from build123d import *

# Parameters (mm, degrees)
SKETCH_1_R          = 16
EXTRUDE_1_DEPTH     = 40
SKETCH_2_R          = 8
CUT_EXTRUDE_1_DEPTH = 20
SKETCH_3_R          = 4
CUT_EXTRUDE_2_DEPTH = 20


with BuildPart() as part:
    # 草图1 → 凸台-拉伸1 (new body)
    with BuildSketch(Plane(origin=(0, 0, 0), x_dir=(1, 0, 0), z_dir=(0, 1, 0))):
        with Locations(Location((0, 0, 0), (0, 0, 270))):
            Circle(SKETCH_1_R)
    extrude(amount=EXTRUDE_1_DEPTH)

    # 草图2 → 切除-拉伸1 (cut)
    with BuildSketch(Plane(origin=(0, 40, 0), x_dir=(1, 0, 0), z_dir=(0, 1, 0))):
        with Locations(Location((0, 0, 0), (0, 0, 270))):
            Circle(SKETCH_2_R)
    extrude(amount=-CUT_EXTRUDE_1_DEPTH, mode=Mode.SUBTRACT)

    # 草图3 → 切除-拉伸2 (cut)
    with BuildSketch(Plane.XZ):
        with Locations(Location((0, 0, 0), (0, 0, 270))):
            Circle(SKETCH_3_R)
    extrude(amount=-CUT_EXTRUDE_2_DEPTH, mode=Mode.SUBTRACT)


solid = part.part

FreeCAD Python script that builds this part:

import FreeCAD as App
import Part
import Sketcher
Q = App.Units.Quantity

doc = App.newDocument("Part")
body = doc.addObject("PartDesign::Body", "Body")

# Sketch on XZ plane
sketch1 = body.newObject("Sketcher::SketchObject", "Sketch")
sketch1.AttachmentSupport = (doc.getObject("XZ_Plane"), [""])
sketch1.MapMode = "FlatFace"
sketch1.addGeometry(Part.Circle(App.Vector(0, 0, 0), App.Vector(0, 0, 1), 16), False)
sketch1.addConstraint([
    Sketcher.Constraint("Coincident", 0, 3, -1, 1),
    Sketcher.Constraint("Diameter", 0, Q("32 mm")),
])
pad1 = body.newObject("PartDesign::Pad", "Pad")
pad1.Profile = sketch1
pad1.Length = 40
pad1.Reversed = True

# Sketch on XZ plane
sketch2 = body.newObject("Sketcher::SketchObject", "Sketch001")
sketch2.AttachmentSupport = (doc.getObject("XZ_Plane"), [""])
sketch2.MapMode = "FlatFace"
sketch2.AttachmentOffset = App.Placement(App.Vector(0, 0, -40), App.Rotation())
sketch2.addGeometry(Part.Circle(App.Vector(0, 0, 0), App.Vector(0, 0, 1), 8), False)
sketch2.addConstraint([
    Sketcher.Constraint("Coincident", 0, 3, -1, 1),
    Sketcher.Constraint("Diameter", 0, Q("16 mm")),
])
pocket1 = body.newObject("PartDesign::Pocket", "Pocket")
pocket1.Profile = sketch2
pocket1.Length = 20
pocket1.Reversed = True

# Sketch on XZ plane
sketch3 = body.newObject("Sketcher::SketchObject", "Sketch002")
sketch3.AttachmentSupport = (doc.getObject("XZ_Plane"), [""])
sketch3.MapMode = "FlatFace"
sketch3.addGeometry(Part.Circle(App.Vector(0, 0, 0), App.Vector(0, 0, 1), 4), False)
sketch3.addConstraint([
    Sketcher.Constraint("Coincident", 0, 3, -1, 1),
    Sketcher.Constraint("Diameter", 0, Q("8 mm")),
])
pocket2 = body.newObject("PartDesign::Pocket", "Pocket001")
pocket2.Profile = sketch3
pocket2.Length = 20

doc.recompute()
